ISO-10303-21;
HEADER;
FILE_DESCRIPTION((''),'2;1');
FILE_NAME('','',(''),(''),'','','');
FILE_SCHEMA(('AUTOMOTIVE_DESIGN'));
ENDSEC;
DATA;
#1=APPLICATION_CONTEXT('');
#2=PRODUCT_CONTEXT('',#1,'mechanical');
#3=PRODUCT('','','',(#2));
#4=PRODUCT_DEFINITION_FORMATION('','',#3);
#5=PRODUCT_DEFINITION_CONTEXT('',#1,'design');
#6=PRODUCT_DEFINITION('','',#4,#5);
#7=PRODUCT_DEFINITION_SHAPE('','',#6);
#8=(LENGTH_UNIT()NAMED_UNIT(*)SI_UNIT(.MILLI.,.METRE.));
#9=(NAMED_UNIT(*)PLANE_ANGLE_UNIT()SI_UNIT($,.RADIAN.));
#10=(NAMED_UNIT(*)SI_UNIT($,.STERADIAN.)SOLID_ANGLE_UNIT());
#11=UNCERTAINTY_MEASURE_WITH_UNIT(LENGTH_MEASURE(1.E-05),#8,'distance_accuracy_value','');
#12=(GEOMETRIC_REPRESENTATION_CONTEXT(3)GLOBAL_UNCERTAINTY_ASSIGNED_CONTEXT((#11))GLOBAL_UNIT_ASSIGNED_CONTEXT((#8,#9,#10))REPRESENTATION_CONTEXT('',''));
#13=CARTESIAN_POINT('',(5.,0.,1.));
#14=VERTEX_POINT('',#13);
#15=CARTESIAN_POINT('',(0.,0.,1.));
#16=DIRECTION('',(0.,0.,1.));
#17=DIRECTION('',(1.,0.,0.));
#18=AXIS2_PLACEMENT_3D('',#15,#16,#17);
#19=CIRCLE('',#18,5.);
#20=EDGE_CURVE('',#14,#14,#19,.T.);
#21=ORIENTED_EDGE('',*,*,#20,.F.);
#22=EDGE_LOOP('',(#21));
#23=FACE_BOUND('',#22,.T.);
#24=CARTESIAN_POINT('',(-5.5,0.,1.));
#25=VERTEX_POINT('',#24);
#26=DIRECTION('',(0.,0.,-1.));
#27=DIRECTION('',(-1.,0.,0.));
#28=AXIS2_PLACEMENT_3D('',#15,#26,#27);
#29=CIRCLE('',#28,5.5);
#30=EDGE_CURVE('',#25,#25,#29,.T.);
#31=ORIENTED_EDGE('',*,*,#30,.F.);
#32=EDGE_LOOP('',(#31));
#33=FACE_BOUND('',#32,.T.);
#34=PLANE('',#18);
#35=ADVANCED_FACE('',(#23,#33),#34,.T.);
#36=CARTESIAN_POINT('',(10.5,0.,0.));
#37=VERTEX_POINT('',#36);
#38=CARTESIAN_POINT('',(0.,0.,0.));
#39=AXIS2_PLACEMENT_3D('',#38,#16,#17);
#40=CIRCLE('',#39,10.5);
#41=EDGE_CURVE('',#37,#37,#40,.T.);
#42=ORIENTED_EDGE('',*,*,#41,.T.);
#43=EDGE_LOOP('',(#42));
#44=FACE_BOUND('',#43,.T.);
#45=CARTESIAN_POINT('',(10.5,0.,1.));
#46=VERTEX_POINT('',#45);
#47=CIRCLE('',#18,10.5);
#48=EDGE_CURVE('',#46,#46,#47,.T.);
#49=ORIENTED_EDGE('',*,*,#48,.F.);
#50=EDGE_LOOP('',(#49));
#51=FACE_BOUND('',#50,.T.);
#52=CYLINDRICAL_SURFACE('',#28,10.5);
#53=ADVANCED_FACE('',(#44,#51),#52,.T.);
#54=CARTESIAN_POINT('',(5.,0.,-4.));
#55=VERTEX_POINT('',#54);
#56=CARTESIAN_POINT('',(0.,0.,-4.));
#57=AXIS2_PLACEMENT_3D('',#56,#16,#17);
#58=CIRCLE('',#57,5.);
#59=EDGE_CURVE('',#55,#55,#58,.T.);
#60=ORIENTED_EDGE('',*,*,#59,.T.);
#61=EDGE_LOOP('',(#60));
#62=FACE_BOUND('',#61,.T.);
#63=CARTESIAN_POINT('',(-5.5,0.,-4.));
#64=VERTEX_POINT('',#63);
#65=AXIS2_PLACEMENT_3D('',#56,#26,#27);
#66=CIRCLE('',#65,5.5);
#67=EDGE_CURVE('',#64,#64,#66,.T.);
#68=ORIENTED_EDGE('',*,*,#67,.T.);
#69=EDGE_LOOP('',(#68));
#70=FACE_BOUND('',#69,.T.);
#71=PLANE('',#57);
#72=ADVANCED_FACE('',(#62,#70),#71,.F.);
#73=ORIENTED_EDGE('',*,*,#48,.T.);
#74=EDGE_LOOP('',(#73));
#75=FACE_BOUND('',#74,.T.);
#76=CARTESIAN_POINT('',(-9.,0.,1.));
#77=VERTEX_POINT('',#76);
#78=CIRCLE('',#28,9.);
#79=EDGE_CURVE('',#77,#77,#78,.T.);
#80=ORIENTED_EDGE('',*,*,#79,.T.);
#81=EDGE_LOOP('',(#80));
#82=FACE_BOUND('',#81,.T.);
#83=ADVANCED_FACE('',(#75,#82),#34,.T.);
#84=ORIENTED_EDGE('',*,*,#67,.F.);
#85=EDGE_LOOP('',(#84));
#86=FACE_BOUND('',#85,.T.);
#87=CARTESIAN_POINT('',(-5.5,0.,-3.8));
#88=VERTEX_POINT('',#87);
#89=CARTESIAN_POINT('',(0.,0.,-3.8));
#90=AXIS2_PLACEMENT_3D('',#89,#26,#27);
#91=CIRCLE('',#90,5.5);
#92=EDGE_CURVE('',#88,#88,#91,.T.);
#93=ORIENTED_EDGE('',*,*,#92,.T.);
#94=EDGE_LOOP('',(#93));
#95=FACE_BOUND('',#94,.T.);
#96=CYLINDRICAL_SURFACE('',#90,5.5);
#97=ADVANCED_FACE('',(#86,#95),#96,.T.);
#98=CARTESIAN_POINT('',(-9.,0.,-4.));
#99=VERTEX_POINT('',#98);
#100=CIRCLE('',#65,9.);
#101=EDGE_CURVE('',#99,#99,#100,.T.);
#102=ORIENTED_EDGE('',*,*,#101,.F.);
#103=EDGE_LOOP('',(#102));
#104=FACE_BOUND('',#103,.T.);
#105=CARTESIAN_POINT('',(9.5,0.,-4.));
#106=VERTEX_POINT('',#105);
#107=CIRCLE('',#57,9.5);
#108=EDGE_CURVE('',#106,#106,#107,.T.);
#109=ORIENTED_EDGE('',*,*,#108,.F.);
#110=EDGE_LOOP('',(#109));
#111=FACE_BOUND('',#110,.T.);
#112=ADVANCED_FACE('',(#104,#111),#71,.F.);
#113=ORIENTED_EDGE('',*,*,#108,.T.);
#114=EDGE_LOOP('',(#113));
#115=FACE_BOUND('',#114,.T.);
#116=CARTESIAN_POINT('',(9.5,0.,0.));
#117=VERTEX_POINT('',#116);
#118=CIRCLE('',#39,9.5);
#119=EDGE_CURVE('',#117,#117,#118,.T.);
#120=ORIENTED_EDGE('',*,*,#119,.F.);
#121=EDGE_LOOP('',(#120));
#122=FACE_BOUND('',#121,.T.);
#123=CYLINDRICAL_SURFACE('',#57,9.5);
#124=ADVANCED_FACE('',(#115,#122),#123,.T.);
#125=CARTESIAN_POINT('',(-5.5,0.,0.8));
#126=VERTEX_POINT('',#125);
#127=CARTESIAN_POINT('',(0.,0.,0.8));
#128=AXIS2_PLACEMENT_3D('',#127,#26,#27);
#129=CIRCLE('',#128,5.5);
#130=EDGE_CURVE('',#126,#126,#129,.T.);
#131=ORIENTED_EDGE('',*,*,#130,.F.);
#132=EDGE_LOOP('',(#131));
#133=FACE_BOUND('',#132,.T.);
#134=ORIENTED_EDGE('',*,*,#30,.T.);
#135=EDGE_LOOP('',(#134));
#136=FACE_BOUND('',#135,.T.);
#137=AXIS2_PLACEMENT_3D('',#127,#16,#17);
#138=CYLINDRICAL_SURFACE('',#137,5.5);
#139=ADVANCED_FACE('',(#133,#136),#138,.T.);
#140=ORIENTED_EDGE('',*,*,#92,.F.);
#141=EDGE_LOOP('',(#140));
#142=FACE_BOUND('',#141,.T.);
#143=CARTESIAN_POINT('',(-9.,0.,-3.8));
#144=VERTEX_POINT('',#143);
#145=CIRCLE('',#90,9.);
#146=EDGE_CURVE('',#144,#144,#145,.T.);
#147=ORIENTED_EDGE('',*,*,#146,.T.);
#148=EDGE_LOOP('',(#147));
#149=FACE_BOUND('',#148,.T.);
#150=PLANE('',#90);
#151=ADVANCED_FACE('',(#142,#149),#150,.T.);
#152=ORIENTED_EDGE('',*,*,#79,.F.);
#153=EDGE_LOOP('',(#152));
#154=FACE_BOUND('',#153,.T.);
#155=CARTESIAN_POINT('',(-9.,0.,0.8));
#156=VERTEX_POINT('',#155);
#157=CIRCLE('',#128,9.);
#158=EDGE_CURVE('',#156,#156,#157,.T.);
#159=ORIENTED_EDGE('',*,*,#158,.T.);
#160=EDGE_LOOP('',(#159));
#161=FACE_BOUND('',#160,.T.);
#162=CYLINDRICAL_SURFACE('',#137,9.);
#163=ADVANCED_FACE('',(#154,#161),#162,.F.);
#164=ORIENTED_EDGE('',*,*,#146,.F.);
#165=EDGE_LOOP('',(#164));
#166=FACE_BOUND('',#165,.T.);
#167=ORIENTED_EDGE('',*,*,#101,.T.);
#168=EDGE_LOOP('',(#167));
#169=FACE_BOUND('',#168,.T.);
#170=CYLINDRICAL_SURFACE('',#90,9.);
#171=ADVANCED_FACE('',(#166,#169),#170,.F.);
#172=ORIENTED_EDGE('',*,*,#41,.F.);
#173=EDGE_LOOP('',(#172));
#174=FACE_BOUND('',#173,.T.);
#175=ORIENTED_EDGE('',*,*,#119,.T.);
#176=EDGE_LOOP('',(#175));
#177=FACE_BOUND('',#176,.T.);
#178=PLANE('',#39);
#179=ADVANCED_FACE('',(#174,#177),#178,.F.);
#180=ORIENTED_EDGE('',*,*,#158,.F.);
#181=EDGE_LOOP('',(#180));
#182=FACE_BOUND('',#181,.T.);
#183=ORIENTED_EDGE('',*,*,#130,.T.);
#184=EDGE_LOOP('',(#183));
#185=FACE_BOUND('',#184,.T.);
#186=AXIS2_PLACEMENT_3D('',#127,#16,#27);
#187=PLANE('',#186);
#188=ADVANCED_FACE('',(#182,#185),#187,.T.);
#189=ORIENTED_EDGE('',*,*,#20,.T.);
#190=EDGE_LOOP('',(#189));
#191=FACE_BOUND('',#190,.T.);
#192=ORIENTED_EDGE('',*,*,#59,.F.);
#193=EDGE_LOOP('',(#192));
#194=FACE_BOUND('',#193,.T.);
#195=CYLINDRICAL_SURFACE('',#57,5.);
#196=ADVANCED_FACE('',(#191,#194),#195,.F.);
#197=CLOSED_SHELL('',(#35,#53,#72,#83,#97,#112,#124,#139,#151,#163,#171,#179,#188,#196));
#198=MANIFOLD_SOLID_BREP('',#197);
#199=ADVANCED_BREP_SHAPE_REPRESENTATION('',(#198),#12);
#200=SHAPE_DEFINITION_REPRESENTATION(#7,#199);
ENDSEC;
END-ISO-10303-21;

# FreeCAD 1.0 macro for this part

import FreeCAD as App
import Part
import Sketcher
from FreeCAD import Vector

doc = App.newDocument("Part")
body = doc.addObject("PartDesign::Body", "Body")

# Sketch on XY plane
sketch1 = body.newObject("Sketcher::SketchObject", "Sketch")
sketch1.AttachmentSupport = (doc.getObject("XY_Plane"), [""])
sketch1.MapMode = "FlatFace"
sketch1.addGeometry(Part.Circle(Vector(0, 0, 0), Vector(0, 0, 1), 10), False)
sketch1.addGeometry(Part.Circle(Vector(0, 0, 0), Vector(0, 0, 1), 10), False)
sketch1.addConstraint(Sketcher.Constraint("Coincident", 0, 3, -1, 1))
sketch1.addConstraint(Sketcher.Constraint("Coincident", 1, 3, -1, 1))
sketch1.addConstraint(Sketcher.Constraint("Diameter", 0, 21.0))
sketch1.addConstraint(Sketcher.Constraint("Diameter", 1, 19.0))
pad1 = body.newObject("PartDesign::Pad", "Pad")
pad1.Profile = sketch1
pad1.Length = 1

# Sketch on XY plane
sketch2 = body.newObject("Sketcher::SketchObject", "Sketch001")
sketch2.AttachmentSupport = (doc.getObject("XY_Plane"), [""])
sketch2.MapMode = "FlatFace"
sketch2.AttachmentOffset = App.Placement(Vector(0, 0, -4), App.Rotation())
sketch2.addGeometry(Part.Circle(Vector(0, 0, 0), Vector(0, 0, 1), 10), False)
sketch2.addGeometry(Part.Circle(Vector(0, 0, 0), Vector(0, 0, 1), 5), False)
sketch2.addConstraint(Sketcher.Constraint("Coincident", 0, 3, -1, 1))
sketch2.addConstraint(Sketcher.Constraint("Coincident", 1, 3, -1, 1))
sketch2.addConstraint(Sketcher.Constraint("Diameter", 0, 19.0))
sketch2.addConstraint(Sketcher.Constraint("Diameter", 1, 10.0))
pad2 = body.newObject("PartDesign::Pad", "Pad001")
pad2.Profile = sketch2
pad2.Length = 5

# Sketch on XY plane
sketch3 = body.newObject("Sketcher::SketchObject", "Sketch002")
sketch3.AttachmentSupport = (doc.getObject("XY_Plane"), [""])
sketch3.MapMode = "FlatFace"
sketch3.AttachmentOffset = App.Placement(Vector(0, 0, -4), App.Rotation())
sketch3.addGeometry(Part.Circle(Vector(0, 0, 0), Vector(0, 0, 1), 9), False)
sketch3.addGeometry(Part.Circle(Vector(0, 0, 0), Vector(0, 0, 1), 6), False)
sketch3.addConstraint(Sketcher.Constraint("Coincident", 0, 3, -1, 1))
sketch3.addConstraint(Sketcher.Constraint("Coincident", 1, 3, -1, 1))
sketch3.addConstraint(Sketcher.Constraint("Diameter", 0, 18.0))
sketch3.addConstraint(Sketcher.Constraint("Diameter", 1, 11.0))
pocket1 = body.newObject("PartDesign::Pocket", "Pocket")
pocket1.Profile = sketch3
pocket1.Length = 0.2
pocket1.Reversed = True
doc.recompute()

datumplane = body.newObject("PartDesign::Plane", "DatumPlane")
datumplane.AttachmentSupport = (doc.getObject("XY_Plane"), [""])
datumplane.MapMode = "FlatFace"
datumplane.AttachmentOffset = App.Placement(Vector(0, 0, -1.5), App.Rotation())
mirrored = body.newObject("PartDesign::Mirrored", "Mirrored")
mirrored.Originals = [pocket1]
mirrored.MirrorPlane = (datumplane, [""])
body.Tip = mirrored

doc.recompute()
